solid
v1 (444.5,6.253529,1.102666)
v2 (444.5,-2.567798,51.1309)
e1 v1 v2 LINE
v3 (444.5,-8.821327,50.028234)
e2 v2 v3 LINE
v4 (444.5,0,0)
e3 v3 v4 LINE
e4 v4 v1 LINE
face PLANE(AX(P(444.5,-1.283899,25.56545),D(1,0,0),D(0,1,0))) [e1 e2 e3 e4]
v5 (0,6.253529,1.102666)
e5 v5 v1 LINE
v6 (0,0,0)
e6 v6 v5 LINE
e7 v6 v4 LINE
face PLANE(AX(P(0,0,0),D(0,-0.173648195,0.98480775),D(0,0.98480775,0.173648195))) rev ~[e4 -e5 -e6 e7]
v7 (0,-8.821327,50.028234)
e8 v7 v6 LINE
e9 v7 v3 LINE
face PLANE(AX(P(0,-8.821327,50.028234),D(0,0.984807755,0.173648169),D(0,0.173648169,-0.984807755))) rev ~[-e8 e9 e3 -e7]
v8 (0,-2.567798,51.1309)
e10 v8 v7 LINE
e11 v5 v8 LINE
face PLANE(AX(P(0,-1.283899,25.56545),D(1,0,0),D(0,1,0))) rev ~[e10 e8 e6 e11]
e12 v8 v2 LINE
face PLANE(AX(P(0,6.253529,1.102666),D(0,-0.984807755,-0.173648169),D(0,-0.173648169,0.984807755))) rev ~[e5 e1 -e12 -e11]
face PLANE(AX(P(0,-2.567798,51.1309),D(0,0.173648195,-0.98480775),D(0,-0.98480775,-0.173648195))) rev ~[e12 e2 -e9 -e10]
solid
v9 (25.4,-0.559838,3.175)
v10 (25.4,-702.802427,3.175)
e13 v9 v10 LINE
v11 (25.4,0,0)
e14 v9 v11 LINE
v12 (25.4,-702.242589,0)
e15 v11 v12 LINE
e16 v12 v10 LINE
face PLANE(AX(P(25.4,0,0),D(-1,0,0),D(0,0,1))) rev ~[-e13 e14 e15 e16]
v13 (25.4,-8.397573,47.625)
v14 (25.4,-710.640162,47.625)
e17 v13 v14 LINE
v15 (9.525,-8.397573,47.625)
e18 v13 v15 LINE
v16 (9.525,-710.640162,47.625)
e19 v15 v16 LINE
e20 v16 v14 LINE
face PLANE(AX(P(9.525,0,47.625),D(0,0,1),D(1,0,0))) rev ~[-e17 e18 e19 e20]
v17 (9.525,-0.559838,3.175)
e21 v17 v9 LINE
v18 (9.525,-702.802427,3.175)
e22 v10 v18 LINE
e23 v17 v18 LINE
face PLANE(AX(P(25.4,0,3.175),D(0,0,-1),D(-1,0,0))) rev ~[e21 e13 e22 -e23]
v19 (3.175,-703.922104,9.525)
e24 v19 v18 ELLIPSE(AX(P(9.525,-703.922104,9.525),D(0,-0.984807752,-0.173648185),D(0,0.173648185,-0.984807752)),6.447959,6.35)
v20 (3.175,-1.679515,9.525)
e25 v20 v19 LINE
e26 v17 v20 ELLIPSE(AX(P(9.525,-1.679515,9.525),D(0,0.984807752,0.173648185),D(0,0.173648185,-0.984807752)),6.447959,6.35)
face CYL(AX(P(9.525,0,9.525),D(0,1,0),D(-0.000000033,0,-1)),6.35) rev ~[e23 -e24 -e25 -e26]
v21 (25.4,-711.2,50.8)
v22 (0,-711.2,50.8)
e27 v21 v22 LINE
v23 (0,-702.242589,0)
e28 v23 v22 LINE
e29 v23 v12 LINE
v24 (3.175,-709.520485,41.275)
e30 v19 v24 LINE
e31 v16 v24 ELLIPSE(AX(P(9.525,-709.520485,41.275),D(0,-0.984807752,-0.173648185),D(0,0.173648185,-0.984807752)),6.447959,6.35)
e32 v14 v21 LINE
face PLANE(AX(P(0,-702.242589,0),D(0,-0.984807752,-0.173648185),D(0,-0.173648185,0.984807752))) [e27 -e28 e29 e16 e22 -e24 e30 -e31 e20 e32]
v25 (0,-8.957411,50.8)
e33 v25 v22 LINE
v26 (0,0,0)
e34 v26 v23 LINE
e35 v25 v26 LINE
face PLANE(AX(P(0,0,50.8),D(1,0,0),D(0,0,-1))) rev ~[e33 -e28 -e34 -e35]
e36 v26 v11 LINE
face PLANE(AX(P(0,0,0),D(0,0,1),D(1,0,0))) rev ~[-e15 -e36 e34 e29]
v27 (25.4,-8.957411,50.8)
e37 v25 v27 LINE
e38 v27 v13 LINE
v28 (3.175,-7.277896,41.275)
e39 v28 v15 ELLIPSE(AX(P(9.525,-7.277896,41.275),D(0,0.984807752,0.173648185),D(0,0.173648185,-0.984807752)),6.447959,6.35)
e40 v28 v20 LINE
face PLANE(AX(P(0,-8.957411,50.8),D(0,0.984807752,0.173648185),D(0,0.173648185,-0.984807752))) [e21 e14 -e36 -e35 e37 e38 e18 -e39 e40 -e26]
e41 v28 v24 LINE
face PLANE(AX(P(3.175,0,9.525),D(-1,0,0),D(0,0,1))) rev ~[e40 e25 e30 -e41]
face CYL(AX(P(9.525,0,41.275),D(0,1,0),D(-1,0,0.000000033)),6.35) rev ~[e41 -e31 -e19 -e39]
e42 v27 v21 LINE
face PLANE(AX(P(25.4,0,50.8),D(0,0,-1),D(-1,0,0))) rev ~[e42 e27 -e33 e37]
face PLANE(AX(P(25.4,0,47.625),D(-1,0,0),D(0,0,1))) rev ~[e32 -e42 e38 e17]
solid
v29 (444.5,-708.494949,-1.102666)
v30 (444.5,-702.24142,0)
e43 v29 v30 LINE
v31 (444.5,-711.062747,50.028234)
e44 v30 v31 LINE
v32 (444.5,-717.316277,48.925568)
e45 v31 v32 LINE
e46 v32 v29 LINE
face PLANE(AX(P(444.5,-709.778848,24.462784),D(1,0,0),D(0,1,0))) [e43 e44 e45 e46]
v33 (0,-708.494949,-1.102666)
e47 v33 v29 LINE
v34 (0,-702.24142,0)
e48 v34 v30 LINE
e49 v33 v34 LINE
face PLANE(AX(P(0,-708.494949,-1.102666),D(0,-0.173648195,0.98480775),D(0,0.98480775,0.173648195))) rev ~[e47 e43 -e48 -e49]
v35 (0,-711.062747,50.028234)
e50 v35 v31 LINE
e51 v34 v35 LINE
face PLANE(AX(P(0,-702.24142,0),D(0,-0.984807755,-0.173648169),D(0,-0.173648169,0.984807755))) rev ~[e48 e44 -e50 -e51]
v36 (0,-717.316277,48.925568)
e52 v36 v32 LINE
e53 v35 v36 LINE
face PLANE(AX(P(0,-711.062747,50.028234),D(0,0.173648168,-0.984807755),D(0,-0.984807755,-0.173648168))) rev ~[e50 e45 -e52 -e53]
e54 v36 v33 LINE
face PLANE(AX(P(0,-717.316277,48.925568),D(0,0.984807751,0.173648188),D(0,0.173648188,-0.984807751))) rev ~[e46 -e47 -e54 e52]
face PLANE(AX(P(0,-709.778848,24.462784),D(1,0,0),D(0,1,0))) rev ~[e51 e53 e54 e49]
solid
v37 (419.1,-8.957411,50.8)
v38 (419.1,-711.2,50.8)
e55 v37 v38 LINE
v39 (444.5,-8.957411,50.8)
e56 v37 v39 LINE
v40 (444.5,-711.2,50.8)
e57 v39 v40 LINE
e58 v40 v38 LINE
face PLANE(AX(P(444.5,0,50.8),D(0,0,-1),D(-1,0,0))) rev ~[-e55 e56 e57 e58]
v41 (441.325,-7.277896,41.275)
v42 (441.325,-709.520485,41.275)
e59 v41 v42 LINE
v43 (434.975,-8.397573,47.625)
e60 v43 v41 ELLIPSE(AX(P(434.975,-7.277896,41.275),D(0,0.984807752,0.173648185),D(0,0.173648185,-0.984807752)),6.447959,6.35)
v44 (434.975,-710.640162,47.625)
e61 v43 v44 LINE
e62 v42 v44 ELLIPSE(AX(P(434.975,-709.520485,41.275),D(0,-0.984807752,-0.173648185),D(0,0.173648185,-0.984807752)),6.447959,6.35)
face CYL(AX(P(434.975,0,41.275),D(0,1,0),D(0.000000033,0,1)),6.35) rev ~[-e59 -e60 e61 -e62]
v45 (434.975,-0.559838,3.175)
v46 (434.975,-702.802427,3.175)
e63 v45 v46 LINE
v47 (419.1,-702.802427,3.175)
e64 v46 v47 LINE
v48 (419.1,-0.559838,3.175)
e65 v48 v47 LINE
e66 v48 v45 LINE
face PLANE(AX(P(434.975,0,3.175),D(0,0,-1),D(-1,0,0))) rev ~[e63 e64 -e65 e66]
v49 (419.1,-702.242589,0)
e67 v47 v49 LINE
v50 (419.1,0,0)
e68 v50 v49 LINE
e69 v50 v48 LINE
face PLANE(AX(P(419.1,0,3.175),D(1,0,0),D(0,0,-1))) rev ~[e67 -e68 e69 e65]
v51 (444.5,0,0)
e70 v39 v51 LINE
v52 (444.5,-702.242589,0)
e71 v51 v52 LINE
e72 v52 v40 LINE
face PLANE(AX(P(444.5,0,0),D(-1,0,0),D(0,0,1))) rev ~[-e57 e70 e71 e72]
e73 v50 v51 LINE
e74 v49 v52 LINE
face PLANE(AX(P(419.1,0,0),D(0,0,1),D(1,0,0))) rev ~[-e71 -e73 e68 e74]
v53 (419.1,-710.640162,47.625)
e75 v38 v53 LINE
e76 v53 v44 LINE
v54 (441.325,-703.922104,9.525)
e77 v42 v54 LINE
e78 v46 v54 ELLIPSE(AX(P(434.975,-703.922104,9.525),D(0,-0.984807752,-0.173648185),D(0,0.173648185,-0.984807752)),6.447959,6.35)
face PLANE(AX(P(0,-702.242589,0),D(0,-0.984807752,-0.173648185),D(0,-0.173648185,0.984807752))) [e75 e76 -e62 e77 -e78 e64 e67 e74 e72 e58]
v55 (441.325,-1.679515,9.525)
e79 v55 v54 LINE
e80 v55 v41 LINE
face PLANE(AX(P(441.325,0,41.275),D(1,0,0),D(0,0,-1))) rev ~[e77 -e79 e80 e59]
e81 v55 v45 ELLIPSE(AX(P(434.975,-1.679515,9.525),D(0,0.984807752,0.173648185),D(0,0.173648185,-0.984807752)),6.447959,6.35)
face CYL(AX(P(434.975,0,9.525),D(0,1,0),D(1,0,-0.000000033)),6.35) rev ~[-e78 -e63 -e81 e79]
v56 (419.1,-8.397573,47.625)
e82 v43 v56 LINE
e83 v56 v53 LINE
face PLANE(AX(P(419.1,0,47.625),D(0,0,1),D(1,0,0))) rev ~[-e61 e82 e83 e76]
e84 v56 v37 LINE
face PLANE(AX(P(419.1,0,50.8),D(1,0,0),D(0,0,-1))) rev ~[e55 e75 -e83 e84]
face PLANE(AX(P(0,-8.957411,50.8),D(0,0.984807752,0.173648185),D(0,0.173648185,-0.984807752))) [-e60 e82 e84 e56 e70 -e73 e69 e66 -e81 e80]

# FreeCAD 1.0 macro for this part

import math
import FreeCAD as App
import Part
import Sketcher
from FreeCAD import Vector
Q = App.Units.Quantity


def add_polygon(sketch, points):
    """Adds a closed chain of lines whose ends are joined by coincident constraints."""
    first, n = sketch.GeometryCount, len(points)
    for a, b in zip(points, points[1:] + points[:1]):
        sketch.addGeometry(Part.LineSegment(App.Vector(*a, 0), App.Vector(*b, 0)), False)
    for i in range(n):
        sketch.addConstraint(Sketcher.Constraint("Coincident", first + i, 2, first + (i + 1) % n, 1))

doc = App.newDocument("Part")
body = doc.addObject("PartDesign::Body", "Body")
body.AllowCompound = True

# Sketch on XZ plane
sketch1 = doc.addObject("Sketcher::SketchObject", "Sketch")
body.addObject(sketch1)
sketch1.AttachmentSupport = (doc.XZ_Plane, [""])
sketch1.MapMode = "FlatFace"
sketch1.addGeometry(Part.LineSegment(Vector(0, 50.8, 0), Vector(0, 0, 0)), False)
sketch1.addGeometry(Part.LineSegment(Vector(0, 0, 0), Vector(25.4, 0, 0)), False)
sketch1.addGeometry(Part.LineSegment(Vector(25.4, 0, 0), Vector(25.4, 3.175, 0)), False)
sketch1.addGeometry(Part.LineSegment(Vector(25.4, 3.175, 0), Vector(9.525, 3.175, 0)), False)
sketch1.addGeometry(Part.ArcOfCircle(Part.Circle(Vector(9.525, 9.525, 0), Vector(0, 0, 1), 6.35), math.radians(-179.999998), math.radians(-90.000002)), False)
sketch1.addGeometry(Part.LineSegment(Vector(3.175, 9.525, 0), Vector(3.175, 41.275, 0)), False)
sketch1.addGeometry(Part.ArcOfCircle(Part.Circle(Vector(9.525, 41.275, 0), Vector(0, 0, 1), 6.35), math.radians(90.000002), math.radians(179.999998)), False)
sketch1.addGeometry(Part.LineSegment(Vector(9.525, 47.625, 0), Vector(25.4, 47.625, 0)), False)
sketch1.addGeometry(Part.LineSegment(Vector(25.4, 47.625, 0), Vector(25.4, 50.8, 0)), False)
sketch1.addGeometry(Part.LineSegment(Vector(25.4, 50.8, 0), Vector(0, 50.8, 0)), False)
sketch1.addGeometry(Part.LineSegment(Vector(419.1, 3.175, 0), Vector(419.1, 0, 0)), False)
sketch1.addGeometry(Part.LineSegment(Vector(419.1, 0, 0), Vector(444.5, 0, 0)), False)
sketch1.addGeometry(Part.LineSegment(Vector(444.5, 0, 0), Vector(444.5, 50.8, 0)), False)
sketch1.addGeometry(Part.LineSegment(Vector(444.5, 50.8, 0), Vector(419.1, 50.8, 0)), False)
sketch1.addGeometry(Part.LineSegment(Vector(419.1, 50.8, 0), Vector(419.1, 47.625, 0)), False)
sketch1.addGeometry(Part.LineSegment(Vector(419.1, 47.625, 0), Vector(434.975, 47.625, 0)), False)
sketch1.addGeometry(Part.ArcOfCircle(Part.Circle(Vector(434.975, 41.275, 0), Vector(0, 0, 1), 6.35), math.radians(0.000002), math.radians(89.999998)), False)
sketch1.addGeometry(Part.LineSegment(Vector(441.325, 41.275, 0), Vector(441.325, 9.525, 0)), False)
sketch1.addGeometry(Part.ArcOfCircle(Part.Circle(Vector(434.975, 9.525, 0), Vector(0, 0, 1), 6.35), math.radians(-89.999998), math.radians(-0.000002)), False)
sketch1.addGeometry(Part.LineSegment(Vector(434.975, 3.175, 0), Vector(419.1, 3.175, 0)), False)
sketch1.addConstraint(Sketcher.Constraint("Coincident", 0, 2, 1, 1))
sketch1.addConstraint(Sketcher.Constraint("Coincident", 1, 2, 2, 1))
sketch1.addConstraint(Sketcher.Constraint("Coincident", 2, 2, 3, 1))
sketch1.addConstraint(Sketcher.Constraint("Tangent", 3, 2, 4, 2))
sketch1.addConstraint(Sketcher.Constraint("Tangent", 4, 1, 5, 1))
sketch1.addConstraint(Sketcher.Constraint("Tangent", 5, 2, 6, 2))
sketch1.addConstraint(Sketcher.Constraint("Tangent", 6, 1, 7, 1))
sketch1.addConstraint(Sketcher.Constraint("Coincident", 7, 2, 8, 1))
sketch1.addConstraint(Sketcher.Constraint("Coincident", 8, 2, 9, 1))
sketch1.addConstraint(Sketcher.Constraint("Coincident", 9, 2, 0, 1))
sketch1.addConstraint(Sketcher.Constraint("Coincident", 10, 2, 11, 1))
sketch1.addConstraint(Sketcher.Constraint("Coincident", 11, 2, 12, 1))
sketch1.addConstraint(Sketcher.Constraint("Coincident", 12, 2, 13, 1))
sketch1.addConstraint(Sketcher.Constraint("Coincident", 13, 2, 14, 1))
sketch1.addConstraint(Sketcher.Constraint("Coincident", 14, 2, 15, 1))
sketch1.addConstraint(Sketcher.Constraint("Tangent", 15, 2, 16, 2))
sketch1.addConstraint(Sketcher.Constraint("Tangent", 16, 1, 17, 1))
sketch1.addConstraint(Sketcher.Constraint("Tangent", 17, 2, 18, 2))
sketch1.addConstraint(Sketcher.Constraint("Tangent", 18, 1, 19, 1))
sketch1.addConstraint(Sketcher.Constraint("Coincident", 19, 2, 10, 1))
sketch1.addConstraint(Sketcher.Constraint("Vertical", 0))
sketch1.addConstraint(Sketcher.Constraint("Horizontal", 1))
sketch1.addConstraint(Sketcher.Constraint("Vertical", 2))
sketch1.addConstraint(Sketcher.Constraint("Horizontal", 3))
sketch1.addConstraint(Sketcher.Constraint("Vertical", 5))
sketch1.addConstraint(Sketcher.Constraint("Horizontal", 7))
sketch1.addConstraint(Sketcher.Constraint("Vertical", 8))
sketch1.addConstraint(Sketcher.Constraint("Horizontal", 9))
sketch1.addConstraint(Sketcher.Constraint("Vertical", 10))
sketch1.addConstraint(Sketcher.Constraint("Horizontal", 11))
sketch1.addConstraint(Sketcher.Constraint("Vertical", 12))
sketch1.addConstraint(Sketcher.Constraint("Horizontal", 13))
sketch1.addConstraint(Sketcher.Constraint("Vertical", 14))
sketch1.addConstraint(Sketcher.Constraint("Horizontal", 15))
sketch1.addConstraint(Sketcher.Constraint("Vertical", 17))
sketch1.addConstraint(Sketcher.Constraint("Horizontal", 19))
sketch1.addConstraint(Sketcher.Constraint("Coincident", 0, 2, -1, 1))
sketch1.addConstraint(Sketcher.Constraint("Equal", 4, 6))
sketch1.addConstraint(Sketcher.Constraint("Equal", 6, 16))
sketch1.addConstraint(Sketcher.Constraint("Equal", 16, 18))
sketch1.addConstraint(Sketcher.Constraint("PointOnObject", 10, 2, -1))
sketch1.addConstraint(Sketcher.Constraint("Horizontal", 6, 3, 16, 3))
sketch1.addConstraint(Sketcher.Constraint("Horizontal", 4, 3, 18, 3))
sketch1.addConstraint(Sketcher.Constraint("Horizontal", 9, 2, 12, 2))
sketch1.addConstraint(Sketcher.Constraint("Vertical", 2, 2, 7, 2))
sketch1.addConstraint(Sketcher.Constraint("Vertical", 10, 2, 13, 2))
sketch1.addConstraint(Sketcher.Constraint("Equal", 9, 11))
sketch1.addConstraint(Sketcher.Constraint("Equal", 7, 15))
sketch1.addConstraint(Sketcher.Constraint("Equal", 2, 8))
sketch1.addConstraint(Sketcher.Constraint("DistanceX", 1, 1, 1, 2, Q("1 in")))
sketch1.addConstraint(Sketcher.Constraint("DistanceY", 0, 2, 0, 1, Q("2 in")))
sketch1.addConstraint(Sketcher.Constraint("Radius", 4, Q("0.25 in")))
sketch1.addConstraint(Sketcher.Constraint("DistanceY", 5, 1, 5, 2, Q("1.25 in")))
sketch1.addConstraint(Sketcher.Constraint("DistanceX", -1, 1, 10, 2, Q("16.5 in")))
sketch1.addConstraint(Sketcher.Constraint("DistanceX", 3, 2, 3, 1, Q("0.625 in")))
pad1 = doc.addObject("PartDesign::Pad", "Pad")
body.addObject(pad1)
pad1.Profile = sketch1
pad1.Length = Q("28 in")

# Sketch on YZ plane
sketch2 = doc.addObject("Sketcher::SketchObject", "Sketch001")
body.addObject(sketch2)
sketch2.AttachmentSupport = (doc.YZ_Plane, [""])
sketch2.MapMode = "FlatFace"
add_polygon(sketch2, [(-8.957411, 50.8), (0, 0), (0, 50.8)])  # lines 0-2
add_polygon(sketch2, [(-711.2, 0), (-702.242589, 0), (-711.2, 50.8)])  # lines 3-5
sketch2.addConstraint(Sketcher.Constraint("Vertical", 1))
sketch2.addConstraint(Sketcher.Constraint("Horizontal", 2))
sketch2.addConstraint(Sketcher.Constraint("Horizontal", 3))
sketch2.addConstraint(Sketcher.Constraint("Vertical", 5))
sketch2.addConstraint(Sketcher.Constraint("Coincident", 0, 2, -1, 1))
sketch2.addConstraint(Sketcher.Constraint("PointOnObject", 3, 2, -1))
sketch2.addConstraint(Sketcher.Constraint("Parallel", 0, 4))
sketch2.addConstraint(Sketcher.Constraint("Horizontal", 2, 2, 4, 2))
sketch2.addConstraint(Sketcher.Constraint("DistanceY", 1, 1, 1, 2, Q("2 in")))
sketch2.addConstraint(Sketcher.Constraint("DistanceX", 4, 2, -1, 1, Q("28 in")))
sketch2.addConstraint(Sketcher.Constraint("Angle", 0, Q("-80 deg")))
pocket1 = doc.addObject("PartDesign::Pocket", "Pocket")
body.addObject(pocket1)
pocket1.Profile = sketch2
pocket1.Type = "ThroughAll"
pocket1.Reversed = True
body2 = doc.addObject("PartDesign::Body", "Body001")
body2.AllowCompound = True

# Sketch on YZ plane
sketch3 = doc.addObject("Sketcher::SketchObject", "Sketch002")
body2.addObject(sketch3)
sketch3.AttachmentSupport = (doc.getObject("YZ_Plane001"), [""])
sketch3.MapMode = "FlatFace"
add_polygon(sketch3, [(-708.494949, -1.102666), (-702.24142, 0), (-711.062747, 50.028234), (-717.316277, 48.925568)])  # lines 0-3
add_polygon(sketch3, [(-8.821327, 50.028234), (0, 0), (6.253529, 1.102666), (-2.567798, 51.1309)])  # lines 4-7
sketch3.addConstraint(Sketcher.Constraint("Coincident", 4, 2, -1, 1))
sketch3.addConstraint(Sketcher.Constraint("PointOnObject", 0, 2, -1))
sketch3.addConstraint(Sketcher.Constraint("Perpendicular", 0, 1))
sketch3.addConstraint(Sketcher.Constraint("Perpendicular", 1, 2))
sketch3.addConstraint(Sketcher.Constraint("Perpendicular", 2, 3))
sketch3.addConstraint(Sketcher.Constraint("Parallel", 3, 4))
sketch3.addConstraint(Sketcher.Constraint("Perpendicular", 4, 5))
sketch3.addConstraint(Sketcher.Constraint("Perpendicular", 5, 6))
sketch3.addConstraint(Sketcher.Constraint("Perpendicular", 6, 7))
sketch3.addConstraint(Sketcher.Constraint("Horizontal", 1, 2, 7, 2))
sketch3.addConstraint(Sketcher.Constraint("Equal", 2, 5))
sketch3.addConstraint(Sketcher.Constraint("Distance", 1, Q("2 in")))
sketch3.addConstraint(Sketcher.Constraint("Angle", 0, Q("10.000001 deg")))
sketch3.addConstraint(Sketcher.Constraint("Distance", 0, Q("0.25 in")))
sketch3.addConstraint(Sketcher.Constraint("DistanceX", 0, 2, -1, 1, Q("27.6473 in")))
pad2 = doc.addObject("PartDesign::Pad", "Pad001")
body2.addObject(pad2)
pad2.Profile = sketch3
pad2.Length = Q("17.5 in")

doc.recompute()
